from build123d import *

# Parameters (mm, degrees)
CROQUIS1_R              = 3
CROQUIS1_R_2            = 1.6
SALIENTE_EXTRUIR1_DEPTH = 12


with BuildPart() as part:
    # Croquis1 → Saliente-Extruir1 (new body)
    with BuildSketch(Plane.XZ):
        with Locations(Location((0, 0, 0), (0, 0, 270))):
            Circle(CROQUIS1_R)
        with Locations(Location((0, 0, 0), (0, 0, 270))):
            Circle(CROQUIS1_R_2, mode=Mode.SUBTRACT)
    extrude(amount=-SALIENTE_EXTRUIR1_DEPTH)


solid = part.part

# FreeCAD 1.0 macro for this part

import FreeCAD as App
import Part
import Sketcher
from FreeCAD import Vector

doc = App.newDocument("Part")
body = doc.addObject("PartDesign::Body", "Body")

sketch1 = body.newObject("Sketcher::SketchObject", "Sketch")
sketch1.AttachmentSupport = (doc.getObject("XZ_Plane"), [""])
sketch1.MapMode = "FlatFace"
sketch1.addGeometry([
    Part.Circle(Vector(0, 0, 0), Vector(0, 0, 1), 3),
    Part.Circle(Vector(0, 0, 0), Vector(0, 0, 1), 1.6),
], False)
sketch1.addConstraint([
    Sketcher.Constraint("Coincident", 0, 3, -1, 1),
    Sketcher.Constraint("Coincident", 1, 3, -1, 1),
    Sketcher.Constraint("Diameter", 0, 6.0),
    Sketcher.Constraint("Diameter", 1, 3.2),
])
pad1 = body.newObject("PartDesign::Pad", "Pad")
pad1.Profile = sketch1
pad1.Length = 12
pad1.Reversed = True

doc.recompute()
